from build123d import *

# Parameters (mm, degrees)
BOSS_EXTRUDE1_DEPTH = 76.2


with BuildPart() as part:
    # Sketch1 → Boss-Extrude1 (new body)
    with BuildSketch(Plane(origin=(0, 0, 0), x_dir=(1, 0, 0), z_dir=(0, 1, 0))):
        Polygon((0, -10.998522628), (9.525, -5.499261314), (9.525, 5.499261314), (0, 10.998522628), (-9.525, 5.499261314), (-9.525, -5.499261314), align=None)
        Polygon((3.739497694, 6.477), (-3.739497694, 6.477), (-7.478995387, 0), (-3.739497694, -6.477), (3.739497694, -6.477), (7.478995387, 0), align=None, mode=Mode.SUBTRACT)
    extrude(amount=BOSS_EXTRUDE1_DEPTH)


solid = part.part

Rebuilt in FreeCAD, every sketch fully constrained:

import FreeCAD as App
import Part
import Sketcher
from FreeCAD import Vector
Q = App.Units.Quantity


def add_polygon(sketch, points):
    """Adds a closed chain of lines whose ends are joined by coincident constraints."""
    first, n = sketch.GeometryCount, len(points)
    for a, b in zip(points, points[1:] + points[:1]):
        sketch.addGeometry(Part.LineSegment(App.Vector(*a, 0), App.Vector(*b, 0)), False)
    for i in range(n):
        sketch.addConstraint(Sketcher.Constraint("Coincident", first + i, 2, first + (i + 1) % n, 1))

doc = App.newDocument("Part")
body = doc.addObject("PartDesign::Body", "Body")

sketch1 = body.newObject("Sketcher::SketchObject", "Sketch")
sketch1.AttachmentSupport = (doc.getObject("XZ_Plane"), [""])
sketch1.MapMode = "FlatFace"
add_polygon(sketch1, [(0, 11), (10, 5), (10, -5), (0, -11), (-10, -5), (-10, 5)])
add_polygon(sketch1, [(-4, -6), (4, -6), (7, 0), (4, 6), (-4, 6), (-7, 0)])
sketch1.addConstraint(Sketcher.Constraint("Vertical", 1))
sketch1.addConstraint(Sketcher.Constraint("Vertical", 4))
sketch1.addConstraint(Sketcher.Constraint("Horizontal", 6))
sketch1.addConstraint(Sketcher.Constraint("Horizontal", 9))
sketch1.addConstraint(Sketcher.Constraint("Symmetric", 0, 2, 3, 2, -1, 1))
sketch1.addConstraint(Sketcher.Constraint("Symmetric", 2, 2, 5, 2, -1, 1))
sketch1.addConstraint(Sketcher.Constraint("Symmetric", 6, 2, 9, 2, -1, 1))
sketch1.addConstraint(Sketcher.Constraint("Symmetric", 7, 2, 10, 2, -1, 1))
sketch1.addConstraint(Sketcher.Constraint("PointOnObject", 2, 2, -2))
sketch1.addConstraint(Sketcher.Constraint("PointOnObject", 7, 2, -1))
sketch1.addConstraint(Sketcher.Constraint("Parallel", 2, 5))
sketch1.addConstraint(Sketcher.Constraint("Perpendicular", 3, 7))
sketch1.addConstraint(Sketcher.Constraint("Perpendicular", 5, 8))
sketch1.addConstraint(Sketcher.Constraint("Parallel", 8, 11))
sketch1.addConstraint(Sketcher.Constraint("Horizontal", 1, 2, 3, 2))
sketch1.addConstraint(Sketcher.Constraint("Angle", 0, Q("-30 deg")))
sketch1.addConstraint(Sketcher.Constraint("DistanceX", 3, 2, 1, 2, Q("0.75 in")))
sketch1.addConstraint(Sketcher.Constraint("DistanceY", 6, 2, 8, 2, Q("0.51 in")))
sketch1.addConstraint(Sketcher.Constraint("DistanceX", 6, 1, 6, 2, 7.478995))
sketch1.addConstraint(Sketcher.Constraint("DistanceY", 1, 2, 1, 1, 10.998523))
pad1 = body.newObject("PartDesign::Pad", "Pad")
pad1.Profile = sketch1
pad1.Length = Q("3 in")
pad1.Reversed = True

doc.recompute()
